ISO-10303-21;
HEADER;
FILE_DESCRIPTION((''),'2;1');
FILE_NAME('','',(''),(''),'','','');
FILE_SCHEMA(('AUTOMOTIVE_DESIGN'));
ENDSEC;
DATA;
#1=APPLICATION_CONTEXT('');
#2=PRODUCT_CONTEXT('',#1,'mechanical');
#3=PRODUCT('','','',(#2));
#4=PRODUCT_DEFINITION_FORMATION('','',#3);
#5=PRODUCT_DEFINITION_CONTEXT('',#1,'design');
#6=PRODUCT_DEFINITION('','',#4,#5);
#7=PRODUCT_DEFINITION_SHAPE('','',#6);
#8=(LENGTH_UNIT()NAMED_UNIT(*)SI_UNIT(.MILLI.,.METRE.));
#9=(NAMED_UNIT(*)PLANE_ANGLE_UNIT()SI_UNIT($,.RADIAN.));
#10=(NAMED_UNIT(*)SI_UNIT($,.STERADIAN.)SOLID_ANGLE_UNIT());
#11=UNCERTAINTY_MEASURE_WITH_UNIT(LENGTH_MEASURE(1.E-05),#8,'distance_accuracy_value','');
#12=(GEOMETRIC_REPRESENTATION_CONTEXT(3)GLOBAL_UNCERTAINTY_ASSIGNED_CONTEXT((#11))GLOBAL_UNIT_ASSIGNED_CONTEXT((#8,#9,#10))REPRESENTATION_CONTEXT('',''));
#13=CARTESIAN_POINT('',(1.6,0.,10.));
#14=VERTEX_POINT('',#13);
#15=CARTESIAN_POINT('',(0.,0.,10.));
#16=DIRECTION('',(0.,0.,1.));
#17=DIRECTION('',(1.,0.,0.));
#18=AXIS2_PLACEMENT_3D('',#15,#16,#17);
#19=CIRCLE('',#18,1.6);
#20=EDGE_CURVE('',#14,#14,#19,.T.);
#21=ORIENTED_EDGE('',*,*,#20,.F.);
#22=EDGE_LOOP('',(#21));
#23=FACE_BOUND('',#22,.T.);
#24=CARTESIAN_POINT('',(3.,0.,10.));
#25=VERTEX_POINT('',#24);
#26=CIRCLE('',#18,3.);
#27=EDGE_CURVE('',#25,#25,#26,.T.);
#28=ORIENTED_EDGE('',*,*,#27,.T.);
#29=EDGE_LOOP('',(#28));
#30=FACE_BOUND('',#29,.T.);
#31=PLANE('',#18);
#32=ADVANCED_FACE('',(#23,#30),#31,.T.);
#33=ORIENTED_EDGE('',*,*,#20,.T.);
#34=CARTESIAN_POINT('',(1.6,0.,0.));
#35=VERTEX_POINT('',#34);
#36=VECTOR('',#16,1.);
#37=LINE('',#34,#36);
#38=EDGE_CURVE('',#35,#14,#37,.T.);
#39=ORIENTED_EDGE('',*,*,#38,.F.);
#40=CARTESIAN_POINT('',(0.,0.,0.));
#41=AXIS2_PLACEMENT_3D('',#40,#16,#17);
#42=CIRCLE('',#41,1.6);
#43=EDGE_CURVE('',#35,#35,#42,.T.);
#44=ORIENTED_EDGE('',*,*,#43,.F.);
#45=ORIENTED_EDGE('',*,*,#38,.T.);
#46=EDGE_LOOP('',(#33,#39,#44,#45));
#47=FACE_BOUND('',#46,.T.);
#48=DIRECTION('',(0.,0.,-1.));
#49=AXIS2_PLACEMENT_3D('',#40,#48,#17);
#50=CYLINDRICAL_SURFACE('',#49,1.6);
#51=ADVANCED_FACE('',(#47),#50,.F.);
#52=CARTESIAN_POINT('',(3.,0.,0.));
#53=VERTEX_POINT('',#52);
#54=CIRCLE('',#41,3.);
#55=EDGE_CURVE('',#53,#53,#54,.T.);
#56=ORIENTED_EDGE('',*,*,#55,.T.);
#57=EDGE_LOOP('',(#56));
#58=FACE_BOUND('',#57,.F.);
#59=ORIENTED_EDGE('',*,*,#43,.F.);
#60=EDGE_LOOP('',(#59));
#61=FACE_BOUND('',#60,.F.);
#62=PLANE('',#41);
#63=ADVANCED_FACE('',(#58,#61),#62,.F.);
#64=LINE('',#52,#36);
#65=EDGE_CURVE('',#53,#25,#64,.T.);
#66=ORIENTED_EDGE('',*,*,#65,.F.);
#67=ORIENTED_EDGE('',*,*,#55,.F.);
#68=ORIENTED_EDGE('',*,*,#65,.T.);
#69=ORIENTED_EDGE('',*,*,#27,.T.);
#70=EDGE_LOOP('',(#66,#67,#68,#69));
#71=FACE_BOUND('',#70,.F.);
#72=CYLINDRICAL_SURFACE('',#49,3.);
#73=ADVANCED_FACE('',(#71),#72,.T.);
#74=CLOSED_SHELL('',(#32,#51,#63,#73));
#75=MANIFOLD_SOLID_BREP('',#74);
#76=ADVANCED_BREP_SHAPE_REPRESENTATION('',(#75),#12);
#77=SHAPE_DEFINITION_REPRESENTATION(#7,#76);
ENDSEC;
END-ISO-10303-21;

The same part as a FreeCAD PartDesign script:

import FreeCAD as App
import Part
import Sketcher
from FreeCAD import Vector

doc = App.newDocument("Part")
body = doc.addObject("PartDesign::Body", "Body")

sketch1 = body.newObject("Sketcher::SketchObject", "Sketch")
sketch1.AttachmentSupport = (doc.getObject("XY_Plane"), [""])
sketch1.MapMode = "FlatFace"
sketch1.addGeometry([
    Part.Circle(Vector(0, 0, 0), Vector(0, 0, 1), 3),
    Part.Circle(Vector(0, 0, 0), Vector(0, 0, 1), 1.6),
], False)
sketch1.addConstraint([
    Sketcher.Constraint("Coincident", 0, 3, -1, 1),
    Sketcher.Constraint("Coincident", 1, 3, -1, 1),
    Sketcher.Constraint("Diameter", 0, 6.0),
    Sketcher.Constraint("Diameter", 1, 3.2),
])
pad1 = body.newObject("PartDesign::Pad", "Pad")
pad1.Profile = sketch1
pad1.Length = 10

doc.recompute()
